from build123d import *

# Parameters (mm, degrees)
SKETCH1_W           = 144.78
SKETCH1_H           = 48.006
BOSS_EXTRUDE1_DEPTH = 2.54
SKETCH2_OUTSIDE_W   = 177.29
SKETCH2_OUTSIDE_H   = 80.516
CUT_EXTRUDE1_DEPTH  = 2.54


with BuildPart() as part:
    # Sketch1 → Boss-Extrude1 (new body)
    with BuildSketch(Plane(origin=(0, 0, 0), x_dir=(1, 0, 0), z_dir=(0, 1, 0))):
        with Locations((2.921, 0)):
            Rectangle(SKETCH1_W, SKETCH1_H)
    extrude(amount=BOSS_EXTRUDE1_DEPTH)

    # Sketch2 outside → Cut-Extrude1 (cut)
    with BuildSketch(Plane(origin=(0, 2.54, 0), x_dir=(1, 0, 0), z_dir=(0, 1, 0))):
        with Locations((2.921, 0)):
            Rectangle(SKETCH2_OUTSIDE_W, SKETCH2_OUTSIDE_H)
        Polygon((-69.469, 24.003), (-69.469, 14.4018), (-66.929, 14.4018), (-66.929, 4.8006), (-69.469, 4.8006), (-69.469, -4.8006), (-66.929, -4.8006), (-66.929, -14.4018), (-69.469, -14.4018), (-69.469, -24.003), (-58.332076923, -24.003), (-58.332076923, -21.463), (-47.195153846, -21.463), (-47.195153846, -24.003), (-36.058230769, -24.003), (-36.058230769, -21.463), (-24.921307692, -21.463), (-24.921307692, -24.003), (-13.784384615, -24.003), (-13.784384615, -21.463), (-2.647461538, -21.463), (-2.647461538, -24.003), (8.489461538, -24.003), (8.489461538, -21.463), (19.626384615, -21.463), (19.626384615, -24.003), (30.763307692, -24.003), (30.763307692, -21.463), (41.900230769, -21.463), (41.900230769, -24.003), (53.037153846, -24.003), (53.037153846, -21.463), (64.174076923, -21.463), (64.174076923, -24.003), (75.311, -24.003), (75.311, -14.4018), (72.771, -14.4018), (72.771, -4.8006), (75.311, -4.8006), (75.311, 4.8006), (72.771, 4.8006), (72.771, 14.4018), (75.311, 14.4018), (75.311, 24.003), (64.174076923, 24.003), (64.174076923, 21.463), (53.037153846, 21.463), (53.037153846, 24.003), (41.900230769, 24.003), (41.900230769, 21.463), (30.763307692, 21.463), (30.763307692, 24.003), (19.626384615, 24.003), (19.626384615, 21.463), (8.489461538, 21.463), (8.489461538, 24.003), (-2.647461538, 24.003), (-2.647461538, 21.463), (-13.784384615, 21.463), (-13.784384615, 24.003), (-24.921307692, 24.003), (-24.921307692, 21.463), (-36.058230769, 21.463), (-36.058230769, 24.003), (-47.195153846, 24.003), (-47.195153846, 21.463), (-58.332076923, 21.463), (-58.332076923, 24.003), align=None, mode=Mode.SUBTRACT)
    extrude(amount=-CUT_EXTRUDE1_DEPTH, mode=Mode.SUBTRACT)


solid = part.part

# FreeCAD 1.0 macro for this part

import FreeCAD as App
import Part
import Sketcher

V = App.Vector
Q = App.Units.Quantity

doc = App.newDocument("Part")
params = doc.addObject("Spreadsheet::Sheet", "Params")
for row, (alias, value) in enumerate([
    ("sketch1_width", "5.7 in"),
    ("sketch1_height", "1.89 in"),
    ("pad1_length", "0.1 in"),
    ("sketch2_width", "0.1 in"),
    ("sketch2_height", "0.378 in"),
    ("pocket1_length", "0.1 in"),
], start=1):
    params.set(f"A{row}", alias)
    params.set(f"B{row}", "=" + value)
    params.setAlias(f"B{row}", alias)

body = doc.addObject("PartDesign::Body", "Body")

# Sketch on XZ plane
sketch1 = body.newObject("Sketcher::SketchObject", "Sketch")
sketch1.AttachmentSupport = (doc.getObject("XZ_Plane"), [""])
sketch1.MapMode = "FlatFace"
sketch1.addGeometry([
    Part.LineSegment(V(-69, -24, 0), V(-69, 24, 0)),
    Part.LineSegment(V(-69, 24, 0), V(75, 24, 0)),
    Part.LineSegment(V(75, 24, 0), V(75, -24, 0)),
    Part.LineSegment(V(75, -24, 0), V(-69, -24, 0)),
], False)
sketch1.addConstraint([
    Sketcher.Constraint("Coincident", 0, 2, 1, 1),
    Sketcher.Constraint("Coincident", 1, 2, 2, 1),
    Sketcher.Constraint("Coincident", 2, 2, 3, 1),
    Sketcher.Constraint("Coincident", 3, 2, 0, 1),
    Sketcher.Constraint("Vertical", 0),
    Sketcher.Constraint("Horizontal", 1),
    Sketcher.Constraint("Vertical", 2),
    Sketcher.Constraint("Horizontal", 3),
    Sketcher.Constraint("DistanceX", 1, 1, 1, 2, Q("5.7 in")),
    Sketcher.Constraint("DistanceY", 0, 1, 0, 2, Q("1.89 in")),
    Sketcher.Constraint("DistanceX", 0, 2, -1, 1, Q("2.735 in")),
    Sketcher.Constraint("DistanceY", -1, 1, 0, 2, Q("0.945 in")),
])
sketch1.setExpression("Constraints[8]", "Params.sketch1_width")
sketch1.setExpression("Constraints[9]", "Params.sketch1_height")
pad1 = body.newObject("PartDesign::Pad", "Pad")
pad1.Profile = sketch1
pad1.setExpression("Length", "Params.pad1_length")
pad1.Reversed = True

# Sketch on XZ plane
sketch2 = body.newObject("Sketcher::SketchObject", "Sketch001")
sketch2.AttachmentSupport = (doc.getObject("XZ_Plane"), [""])
sketch2.MapMode = "FlatFace"
sketch2.AttachmentOffset = App.Placement(V(0, 0, -0.1 * 25.4), App.Rotation())
sketch2.addGeometry([
    Part.LineSegment(V(-85.7, -40.3, 0), V(-85.7, 40.3, 0)),  # 0
    Part.LineSegment(V(-85.7, 40.3, 0), V(91.6, 40.3, 0)),  # 1
    Part.LineSegment(V(91.6, 40.3, 0), V(91.6, -40.3, 0)),  # 2
    Part.LineSegment(V(91.6, -40.3, 0), V(-85.7, -40.3, 0)),  # 3
    Part.LineSegment(V(-69.5, -14.4, 0), V(-69.5, -24, 0)),  # 4
    Part.LineSegment(V(-69.5, -24, 0), V(-58.3, -24, 0)),  # 5
    Part.LineSegment(V(-58.3, -24, 0), V(-58.3, -21.5, 0)),  # 6
    Part.LineSegment(V(-58.3, -21.5, 0), V(-47.2, -21.5, 0)),  # 7
    Part.LineSegment(V(-47.2, -21.5, 0), V(-47.2, -24, 0)),  # 8
    Part.LineSegment(V(-47.2, -24, 0), V(-36.1, -24, 0)),  # 9
    Part.LineSegment(V(-36.1, -24, 0), V(-36.1, -21.5, 0)),  # 10
    Part.LineSegment(V(-36.1, -21.5, 0), V(-24.9, -21.5, 0)),  # 11
    Part.LineSegment(V(-24.9, -21.5, 0), V(-24.9, -24, 0)),  # 12
    Part.LineSegment(V(-24.9, -24, 0), V(-13.8, -24, 0)),  # 13
    Part.LineSegment(V(-13.8, -24, 0), V(-13.8, -21.5, 0)),  # 14
    Part.LineSegment(V(-13.8, -21.5, 0), V(-2.6, -21.5, 0)),  # 15
    Part.LineSegment(V(-2.6, -21.5, 0), V(-2.6, -24, 0)),  # 16
    Part.LineSegment(V(-2.6, -24, 0), V(8.5, -24, 0)),  # 17
    Part.LineSegment(V(8.5, -24, 0), V(8.5, -21.5, 0)),  # 18
    Part.LineSegment(V(8.5, -21.5, 0), V(19.6, -21.5, 0)),  # 19
    Part.LineSegment(V(19.6, -21.5, 0), V(19.6, -24, 0)),  # 20
    Part.LineSegment(V(19.6, -24, 0), V(30.8, -24, 0)),  # 21
    Part.LineSegment(V(30.8, -24, 0), V(30.8, -21.5, 0)),  # 22
    Part.LineSegment(V(30.8, -21.5, 0), V(41.9, -21.5, 0)),  # 23
    Part.LineSegment(V(41.9, -21.5, 0), V(41.9, -24, 0)),  # 24
    Part.LineSegment(V(41.9, -24, 0), V(53, -24, 0)),  # 25
    Part.LineSegment(V(53, -24, 0), V(53, -21.5, 0)),  # 26
    Part.LineSegment(V(53, -21.5, 0), V(64.2, -21.5, 0)),  # 27
    Part.LineSegment(V(64.2, -21.5, 0), V(64.2, -24, 0)),  # 28
    Part.LineSegment(V(64.2, -24, 0), V(75.3, -24, 0)),  # 29
    Part.LineSegment(V(75.3, -24, 0), V(75.3, -14.4, 0)),  # 30
    Part.LineSegment(V(75.3, -14.4, 0), V(72.8, -14.4, 0)),  # 31
    Part.LineSegment(V(72.8, -14.4, 0), V(72.8, -4.8, 0)),  # 32
    Part.LineSegment(V(72.8, -4.8, 0), V(75.3, -4.8, 0)),  # 33
    Part.LineSegment(V(75.3, -4.8, 0), V(75.3, 4.8, 0)),  # 34
    Part.LineSegment(V(75.3, 4.8, 0), V(72.8, 4.8, 0)),  # 35
    Part.LineSegment(V(72.8, 4.8, 0), V(72.8, 14.4, 0)),  # 36
    Part.LineSegment(V(72.8, 14.4, 0), V(75.3, 14.4, 0)),  # 37
    Part.LineSegment(V(75.3, 14.4, 0), V(75.3, 24, 0)),  # 38
    Part.LineSegment(V(75.3, 24, 0), V(64.2, 24, 0)),  # 39
    Part.LineSegment(V(64.2, 24, 0), V(64.2, 21.5, 0)),  # 40
    Part.LineSegment(V(64.2, 21.5, 0), V(53, 21.5, 0)),  # 41
    Part.LineSegment(V(53, 21.5, 0), V(53, 24, 0)),  # 42
    Part.LineSegment(V(53, 24, 0), V(41.9, 24, 0)),  # 43
    Part.LineSegment(V(41.9, 24, 0), V(41.9, 21.5, 0)),  # 44
    Part.LineSegment(V(41.9, 21.5, 0), V(30.8, 21.5, 0)),  # 45
    Part.LineSegment(V(30.8, 21.5, 0), V(30.8, 24, 0)),  # 46
    Part.LineSegment(V(30.8, 24, 0), V(19.6, 24, 0)),  # 47
    Part.LineSegment(V(19.6, 24, 0), V(19.6, 21.5, 0)),  # 48
    Part.LineSegment(V(19.6, 21.5, 0), V(8.5, 21.5, 0)),  # 49
    Part.LineSegment(V(8.5, 21.5, 0), V(8.5, 24, 0)),  # 50
    Part.LineSegment(V(8.5, 24, 0), V(-2.6, 24, 0)),  # 51
    Part.LineSegment(V(-2.6, 24, 0), V(-2.6, 21.5, 0)),  # 52
    Part.LineSegment(V(-2.6, 21.5, 0), V(-13.8, 21.5, 0)),  # 53
    Part.LineSegment(V(-13.8, 21.5, 0), V(-13.8, 24, 0)),  # 54
    Part.LineSegment(V(-13.8, 24, 0), V(-24.9, 24, 0)),  # 55
    Part.LineSegment(V(-24.9, 24, 0), V(-24.9, 21.5, 0)),  # 56
    Part.LineSegment(V(-24.9, 21.5, 0), V(-36.1, 21.5, 0)),  # 57
    Part.LineSegment(V(-36.1, 21.5, 0), V(-36.1, 24, 0)),  # 58
    Part.LineSegment(V(-36.1, 24, 0), V(-47.2, 24, 0)),  # 59
    Part.LineSegment(V(-47.2, 24, 0), V(-47.2, 21.5, 0)),  # 60
    Part.LineSegment(V(-47.2, 21.5, 0), V(-58.3, 21.5, 0)),  # 61
    Part.LineSegment(V(-58.3, 21.5, 0), V(-58.3, 24, 0)),  # 62
    Part.LineSegment(V(-58.3, 24, 0), V(-69.5, 24, 0)),  # 63
    Part.LineSegment(V(-69.5, 24, 0), V(-69.5, 14.4, 0)),  # 64
    Part.LineSegment(V(-69.5, 14.4, 0), V(-66.9, 14.4, 0)),  # 65
    Part.LineSegment(V(-66.9, 14.4, 0), V(-66.9, 4.8, 0)),  # 66
    Part.LineSegment(V(-66.9, 4.8, 0), V(-69.5, 4.8, 0)),  # 67
    Part.LineSegment(V(-69.5, 4.8, 0), V(-69.5, -4.8, 0)),  # 68
    Part.LineSegment(V(-69.5, -4.8, 0), V(-66.9, -4.8, 0)),  # 69
    Part.LineSegment(V(-66.9, -4.8, 0), V(-66.9, -14.4, 0)),  # 70
    Part.LineSegment(V(-66.9, -14.4, 0), V(-69.5, -14.4, 0)),  # 71
], False)
sketch2.addConstraint([
    Sketcher.Constraint("Coincident", 0, 2, 1, 1),
    Sketcher.Constraint("Coincident", 1, 2, 2, 1),
    Sketcher.Constraint("Coincident", 2, 2, 3, 1),
    Sketcher.Constraint("Coincident", 3, 2, 0, 1),
    Sketcher.Constraint("Coincident", 4, 2, 5, 1),
    Sketcher.Constraint("Coincident", 5, 2, 6, 1),
    Sketcher.Constraint("Coincident", 6, 2, 7, 1),
    Sketcher.Constraint("Coincident", 7, 2, 8, 1),
    Sketcher.Constraint("Coincident", 8, 2, 9, 1),
    Sketcher.Constraint("Coincident", 9, 2, 10, 1),
    Sketcher.Constraint("Coincident", 10, 2, 11, 1),
    Sketcher.Constraint("Coincident", 11, 2, 12, 1),
    Sketcher.Constraint("Coincident", 12, 2, 13, 1),
    Sketcher.Constraint("Coincident", 13, 2, 14, 1),
    Sketcher.Constraint("Coincident", 14, 2, 15, 1),
    Sketcher.Constraint("Coincident", 15, 2, 16, 1),
    Sketcher.Constraint("Coincident", 16, 2, 17, 1),
    Sketcher.Constraint("Coincident", 17, 2, 18, 1),
    Sketcher.Constraint("Coincident", 18, 2, 19, 1),
    Sketcher.Constraint("Coincident", 19, 2, 20, 1),
    Sketcher.Constraint("Coincident", 20, 2, 21, 1),
    Sketcher.Constraint("Coincident", 21, 2, 22, 1),
    Sketcher.Constraint("Coincident", 22, 2, 23, 1),
    Sketcher.Constraint("Coincident", 23, 2, 24, 1),
    Sketcher.Constraint("Coincident", 24, 2, 25, 1),
    Sketcher.Constraint("Coincident", 25, 2, 26, 1),
    Sketcher.Constraint("Coincident", 26, 2, 27, 1),
    Sketcher.Constraint("Coincident", 27, 2, 28, 1),
    Sketcher.Constraint("Coincident", 28, 2, 29, 1),
    Sketcher.Constraint("Coincident", 29, 2, 30, 1),
    Sketcher.Constraint("Coincident", 30, 2, 31, 1),
    Sketcher.Constraint("Coincident", 31, 2, 32, 1),
    Sketcher.Constraint("Coincident", 32, 2, 33, 1),
    Sketcher.Constraint("Coincident", 33, 2, 34, 1),
    Sketcher.Constraint("Coincident", 34, 2, 35, 1),
    Sketcher.Constraint("Coincident", 35, 2, 36, 1),
    Sketcher.Constraint("Coincident", 36, 2, 37, 1),
    Sketcher.Constraint("Coincident", 37, 2, 38, 1),
    Sketcher.Constraint("Coincident", 38, 2, 39, 1),
    Sketcher.Constraint("Coincident", 39, 2, 40, 1),
    Sketcher.Constraint("Coincident", 40, 2, 41, 1),
    Sketcher.Constraint("Coincident", 41, 2, 42, 1),
    Sketcher.Constraint("Coincident", 42, 2, 43, 1),
    Sketcher.Constraint("Coincident", 43, 2, 44, 1),
    Sketcher.Constraint("Coincident", 44, 2, 45, 1),
    Sketcher.Constraint("Coincident", 45, 2, 46, 1),
    Sketcher.Constraint("Coincident", 46, 2, 47, 1),
    Sketcher.Constraint("Coincident", 47, 2, 48, 1),
    Sketcher.Constraint("Coincident", 48, 2, 49, 1),
    Sketcher.Constraint("Coincident", 49, 2, 50, 1),
    Sketcher.Constraint("Coincident", 50, 2, 51, 1),
    Sketcher.Constraint("Coincident", 51, 2, 52, 1),
    Sketcher.Constraint("Coincident", 52, 2, 53, 1),
    Sketcher.Constraint("Coincident", 53, 2, 54, 1),
    Sketcher.Constraint("Coincident", 54, 2, 55, 1),
    Sketcher.Constraint("Coincident", 55, 2, 56, 1),
    Sketcher.Constraint("Coincident", 56, 2, 57, 1),
    Sketcher.Constraint("Coincident", 57, 2, 58, 1),
    Sketcher.Constraint("Coincident", 58, 2, 59, 1),
    Sketcher.Constraint("Coincident", 59, 2, 60, 1),
    Sketcher.Constraint("Coincident", 60, 2, 61, 1),
    Sketcher.Constraint("Coincident", 61, 2, 62, 1),
    Sketcher.Constraint("Coincident", 62, 2, 63, 1),
    Sketcher.Constraint("Coincident", 63, 2, 64, 1),
    Sketcher.Constraint("Coincident", 64, 2, 65, 1),
    Sketcher.Constraint("Coincident", 65, 2, 66, 1),
    Sketcher.Constraint("Coincident", 66, 2, 67, 1),
    Sketcher.Constraint("Coincident", 67, 2, 68, 1),
    Sketcher.Constraint("Coincident", 68, 2, 69, 1),
    Sketcher.Constraint("Coincident", 69, 2, 70, 1),
    Sketcher.Constraint("Coincident", 70, 2, 71, 1),
    Sketcher.Constraint("Coincident", 71, 2, 4, 1),
    Sketcher.Constraint("Vertical", 0),
    Sketcher.Constraint("Horizontal", 1),
    Sketcher.Constraint("Vertical", 2),
    Sketcher.Constraint("Horizontal", 3),
    Sketcher.Constraint("Vertical", 4),
    Sketcher.Constraint("Horizontal", 5),
    Sketcher.Constraint("Vertical", 6),
    Sketcher.Constraint("Horizontal", 7),
    Sketcher.Constraint("Vertical", 8),
    Sketcher.Constraint("Horizontal", 9),
    Sketcher.Constraint("Vertical", 10),
    Sketcher.Constraint("Horizontal", 11),
    Sketcher.Constraint("Vertical", 12),
    Sketcher.Constraint("Horizontal", 13),
    Sketcher.Constraint("Vertical", 14),
    Sketcher.Constraint("Horizontal", 15),
    Sketcher.Constraint("Vertical", 16),
    Sketcher.Constraint("Horizontal", 17),
    Sketcher.Constraint("Vertical", 18),
    Sketcher.Constraint("Horizontal", 19),
    Sketcher.Constraint("Vertical", 20),
    Sketcher.Constraint("Horizontal", 21),
    Sketcher.Constraint("Vertical", 22),
    Sketcher.Constraint("Horizontal", 23),
    Sketcher.Constraint("Vertical", 24),
    Sketcher.Constraint("Horizontal", 25),
    Sketcher.Constraint("Vertical", 26),
    Sketcher.Constraint("Horizontal", 27),
    Sketcher.Constraint("Vertical", 28),
    Sketcher.Constraint("Horizontal", 29),
    Sketcher.Constraint("Vertical", 30),
    Sketcher.Constraint("Horizontal", 31),
    Sketcher.Constraint("Vertical", 32),
    Sketcher.Constraint("Horizontal", 33),
    Sketcher.Constraint("Vertical", 34),
    Sketcher.Constraint("Horizontal", 35),
    Sketcher.Constraint("Vertical", 36),
    Sketcher.Constraint("Horizontal", 37),
    Sketcher.Constraint("Vertical", 38),
    Sketcher.Constraint("Horizontal", 39),
    Sketcher.Constraint("Vertical", 40),
    Sketcher.Constraint("Horizontal", 41),
    Sketcher.Constraint("Vertical", 42),
    Sketcher.Constraint("Horizontal", 43),
    Sketcher.Constraint("Vertical", 44),
    Sketcher.Constraint("Horizontal", 45),
    Sketcher.Constraint("Vertical", 46),
    Sketcher.Constraint("Horizontal", 47),
    Sketcher.Constraint("Vertical", 48),
    Sketcher.Constraint("Horizontal", 49),
    Sketcher.Constraint("Vertical", 50),
    Sketcher.Constraint("Horizontal", 51),
    Sketcher.Constraint("Vertical", 52),
    Sketcher.Constraint("Horizontal", 53),
    Sketcher.Constraint("Vertical", 54),
    Sketcher.Constraint("Horizontal", 55),
    Sketcher.Constraint("Vertical", 56),
    Sketcher.Constraint("Horizontal", 57),
    Sketcher.Constraint("Vertical", 58),
    Sketcher.Constraint("Horizontal", 59),
    Sketcher.Constraint("Vertical", 60),
    Sketcher.Constraint("Horizontal", 61),
    Sketcher.Constraint("Vertical", 62),
    Sketcher.Constraint("Horizontal", 63),
    Sketcher.Constraint("Vertical", 64),
    Sketcher.Constraint("Horizontal", 65),
    Sketcher.Constraint("Vertical", 66),
    Sketcher.Constraint("Horizontal", 67),
    Sketcher.Constraint("Vertical", 68),
    Sketcher.Constraint("Horizontal", 69),
    Sketcher.Constraint("Vertical", 70),
    Sketcher.Constraint("Horizontal", 71),
    Sketcher.Constraint("Symmetric", 32, 2, 35, 2, -1),
    Sketcher.Constraint("Symmetric", 30, 2, 37, 2, -1),
    Sketcher.Constraint("Symmetric", 28, 2, 39, 2, -1),
    Sketcher.Constraint("Symmetric", 26, 2, 41, 2, -1),
    Sketcher.Constraint("Symmetric", 24, 2, 43, 2, -1),
    Sketcher.Constraint("Symmetric", 22, 2, 45, 2, -1),
    Sketcher.Constraint("Symmetric", 20, 2, 47, 2, -1),
    Sketcher.Constraint("Symmetric", 18, 2, 49, 2, -1),
    Sketcher.Constraint("Symmetric", 16, 2, 51, 2, -1),
    Sketcher.Constraint("Symmetric", 14, 2, 53, 2, -1),
    Sketcher.Constraint("Symmetric", 12, 2, 55, 2, -1),
    Sketcher.Constraint("Symmetric", 10, 2, 57, 2, -1),
    Sketcher.Constraint("Symmetric", 8, 2, 59, 2, -1),
    Sketcher.Constraint("Symmetric", 6, 2, 61, 2, -1),
    Sketcher.Constraint("Symmetric", 4, 2, 63, 2, -1),
    Sketcher.Constraint("Symmetric", 66, 2, 69, 2, -1),
    Sketcher.Constraint("Horizontal", 5, 2, 8, 2),
    Sketcher.Constraint("Horizontal", 7, 2, 10, 2),
    Sketcher.Constraint("Horizontal", 9, 2, 12, 2),
    Sketcher.Constraint("Horizontal", 11, 2, 14, 2),
    Sketcher.Constraint("Horizontal", 13, 2, 16, 2),
    Sketcher.Constraint("Horizontal", 15, 2, 18, 2),
    Sketcher.Constraint("Horizontal", 17, 2, 20, 2),
    Sketcher.Constraint("Horizontal", 19, 2, 22, 2),
    Sketcher.Constraint("Horizontal", 21, 2, 24, 2),
    Sketcher.Constraint("Horizontal", 23, 2, 26, 2),
    Sketcher.Constraint("Horizontal", 25, 2, 28, 2),
    Sketcher.Constraint("Horizontal", 37, 2, 64, 2),
    Sketcher.Constraint("Horizontal", 35, 2, 66, 2),
    Sketcher.Constraint("Horizontal", 31, 2, 70, 2),
    Sketcher.Constraint("Vertical", 30, 2, 33, 2),
    Sketcher.Constraint("Vertical", 64, 2, 67, 2),
    Sketcher.Constraint("Equal", 5, 7),
    Sketcher.Constraint("Equal", 7, 9),
    Sketcher.Constraint("Equal", 9, 11),
    Sketcher.Constraint("Equal", 11, 13),
    Sketcher.Constraint("Equal", 13, 15),
    Sketcher.Constraint("Equal", 15, 17),
    Sketcher.Constraint("Equal", 17, 19),
    Sketcher.Constraint("Equal", 19, 21),
    Sketcher.Constraint("Equal", 21, 23),
    Sketcher.Constraint("Equal", 23, 25),
    Sketcher.Constraint("Equal", 25, 27),
    Sketcher.Constraint("Equal", 27, 29),
    Sketcher.Constraint("Equal", 37, 65),
    Sketcher.Constraint("Equal", 71, 6),
    Sketcher.Constraint("Equal", 30, 32),
    Sketcher.Constraint("Equal", 32, 34),
    Sketcher.Constraint("DistanceX", 31, 2, 31, 1, Q("0.1 in")),
    Sketcher.Constraint("DistanceY", 4, 2, 4, 1, Q("0.378 in")),
    Sketcher.Constraint("DistanceX", 4, 2, -1, 1, Q("2.735 in")),
    Sketcher.Constraint("DistanceX", -1, 1, 29, 2, Q("2.965 in")),
    Sketcher.Constraint("DistanceX", 1, 1, 1, 2, 177.29),
    Sketcher.Constraint("DistanceY", 0, 1, 0, 2, 80.516),
    Sketcher.Constraint("DistanceX", 0, 2, -1, 1, 85.724),
    Sketcher.Constraint("DistanceY", -1, 1, 0, 2, 40.258),
])
sketch2.setExpression("Constraints[192]", "Params.sketch2_width")
sketch2.setExpression("Constraints[193]", "Params.sketch2_height")
pocket1 = body.newObject("PartDesign::Pocket", "Pocket")
pocket1.Profile = sketch2
pocket1.setExpression("Length", "Params.pocket1_length")
pocket1.Reversed = True

doc.recompute()
